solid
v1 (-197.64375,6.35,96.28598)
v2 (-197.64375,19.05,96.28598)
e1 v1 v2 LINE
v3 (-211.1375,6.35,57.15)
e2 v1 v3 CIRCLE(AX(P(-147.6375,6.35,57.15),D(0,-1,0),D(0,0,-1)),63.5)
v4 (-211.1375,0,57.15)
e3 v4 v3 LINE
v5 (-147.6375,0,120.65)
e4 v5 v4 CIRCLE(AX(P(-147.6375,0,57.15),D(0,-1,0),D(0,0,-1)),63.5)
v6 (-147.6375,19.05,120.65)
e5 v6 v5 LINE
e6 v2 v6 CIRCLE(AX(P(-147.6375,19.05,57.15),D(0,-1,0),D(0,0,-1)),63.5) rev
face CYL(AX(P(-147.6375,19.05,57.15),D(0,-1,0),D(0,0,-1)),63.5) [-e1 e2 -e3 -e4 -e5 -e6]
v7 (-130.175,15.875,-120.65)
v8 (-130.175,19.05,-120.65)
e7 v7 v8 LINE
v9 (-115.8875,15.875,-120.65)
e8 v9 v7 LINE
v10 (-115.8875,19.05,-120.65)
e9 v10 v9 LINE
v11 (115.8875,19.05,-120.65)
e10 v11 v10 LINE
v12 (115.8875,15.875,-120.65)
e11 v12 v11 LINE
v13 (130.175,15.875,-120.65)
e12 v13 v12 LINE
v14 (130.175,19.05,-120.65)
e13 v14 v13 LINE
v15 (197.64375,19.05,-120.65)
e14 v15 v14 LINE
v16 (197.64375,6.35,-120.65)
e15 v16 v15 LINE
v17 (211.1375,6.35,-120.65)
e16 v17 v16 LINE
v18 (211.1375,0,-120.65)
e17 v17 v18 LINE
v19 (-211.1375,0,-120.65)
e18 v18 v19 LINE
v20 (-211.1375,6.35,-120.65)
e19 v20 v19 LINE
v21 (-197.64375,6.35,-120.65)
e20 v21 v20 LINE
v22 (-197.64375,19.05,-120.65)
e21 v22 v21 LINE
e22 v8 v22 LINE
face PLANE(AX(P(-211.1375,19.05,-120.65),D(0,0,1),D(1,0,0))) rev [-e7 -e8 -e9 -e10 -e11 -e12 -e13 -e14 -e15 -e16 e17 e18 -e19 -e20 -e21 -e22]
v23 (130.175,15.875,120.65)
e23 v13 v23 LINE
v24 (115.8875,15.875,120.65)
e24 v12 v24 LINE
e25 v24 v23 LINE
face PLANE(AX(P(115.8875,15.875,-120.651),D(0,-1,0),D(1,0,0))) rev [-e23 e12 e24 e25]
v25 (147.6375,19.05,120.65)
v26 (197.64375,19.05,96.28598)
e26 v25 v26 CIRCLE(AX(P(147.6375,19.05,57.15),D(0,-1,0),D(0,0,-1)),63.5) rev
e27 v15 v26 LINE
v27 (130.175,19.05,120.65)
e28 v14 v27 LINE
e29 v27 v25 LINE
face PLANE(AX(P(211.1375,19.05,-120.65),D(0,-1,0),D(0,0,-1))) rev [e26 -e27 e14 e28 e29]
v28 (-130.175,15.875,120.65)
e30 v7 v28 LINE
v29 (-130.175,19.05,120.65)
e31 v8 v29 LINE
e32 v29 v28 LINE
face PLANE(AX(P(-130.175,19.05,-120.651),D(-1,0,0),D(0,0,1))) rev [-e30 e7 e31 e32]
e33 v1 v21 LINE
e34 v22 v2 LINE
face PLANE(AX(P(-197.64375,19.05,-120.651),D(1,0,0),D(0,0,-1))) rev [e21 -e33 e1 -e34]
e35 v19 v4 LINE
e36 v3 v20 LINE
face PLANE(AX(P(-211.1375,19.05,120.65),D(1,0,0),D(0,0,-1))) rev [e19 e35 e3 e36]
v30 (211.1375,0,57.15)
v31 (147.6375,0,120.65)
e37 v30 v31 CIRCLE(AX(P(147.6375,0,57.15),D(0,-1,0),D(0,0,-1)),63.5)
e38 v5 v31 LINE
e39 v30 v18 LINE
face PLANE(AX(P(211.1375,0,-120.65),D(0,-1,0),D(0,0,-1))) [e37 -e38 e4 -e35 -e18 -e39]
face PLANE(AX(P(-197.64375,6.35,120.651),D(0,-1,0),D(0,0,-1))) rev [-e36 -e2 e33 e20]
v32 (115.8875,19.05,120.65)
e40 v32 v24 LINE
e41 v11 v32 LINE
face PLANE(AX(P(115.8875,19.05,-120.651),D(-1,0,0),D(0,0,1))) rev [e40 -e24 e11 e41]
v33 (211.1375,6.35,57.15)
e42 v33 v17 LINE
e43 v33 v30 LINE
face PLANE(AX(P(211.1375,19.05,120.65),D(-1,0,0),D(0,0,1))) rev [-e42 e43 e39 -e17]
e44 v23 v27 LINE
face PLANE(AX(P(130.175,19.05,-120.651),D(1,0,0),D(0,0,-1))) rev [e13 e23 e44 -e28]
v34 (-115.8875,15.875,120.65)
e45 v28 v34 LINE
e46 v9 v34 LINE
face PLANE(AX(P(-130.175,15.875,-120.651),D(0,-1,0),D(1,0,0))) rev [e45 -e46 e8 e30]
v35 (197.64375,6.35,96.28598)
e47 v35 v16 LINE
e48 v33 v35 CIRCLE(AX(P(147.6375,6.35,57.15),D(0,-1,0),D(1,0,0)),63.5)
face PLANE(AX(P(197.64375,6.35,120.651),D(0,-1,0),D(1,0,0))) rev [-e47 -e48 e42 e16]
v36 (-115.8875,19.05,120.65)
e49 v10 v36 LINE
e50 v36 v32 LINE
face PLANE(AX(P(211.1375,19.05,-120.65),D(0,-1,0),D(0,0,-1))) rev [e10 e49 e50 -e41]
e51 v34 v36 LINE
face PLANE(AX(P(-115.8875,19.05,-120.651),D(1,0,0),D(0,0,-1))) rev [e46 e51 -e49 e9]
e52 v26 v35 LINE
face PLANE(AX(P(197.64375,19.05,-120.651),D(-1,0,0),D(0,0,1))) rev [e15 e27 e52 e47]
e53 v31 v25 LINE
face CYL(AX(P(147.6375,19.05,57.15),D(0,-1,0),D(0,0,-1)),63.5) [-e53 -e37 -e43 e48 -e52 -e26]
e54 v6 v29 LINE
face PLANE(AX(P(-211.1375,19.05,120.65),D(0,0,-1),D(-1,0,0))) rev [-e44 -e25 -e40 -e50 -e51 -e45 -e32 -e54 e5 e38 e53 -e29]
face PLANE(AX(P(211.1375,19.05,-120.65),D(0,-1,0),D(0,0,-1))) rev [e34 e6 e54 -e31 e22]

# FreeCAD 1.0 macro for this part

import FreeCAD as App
import Part
import Sketcher
Q = App.Units.Quantity


def edges_at(feature, points):
    """Names of the edges that pass closest to the given points."""
    edges = feature.Shape.Edges
    near = lambda p: min(range(len(edges)), key=lambda i: edges[i].distToShape(Part.Vertex(*p))[0])
    return sorted({f"Edge{near(p) + 1}" for p in points})


def add_polygon(sketch, points):
    """Adds a closed chain of lines whose ends are joined by coincident constraints."""
    first, n = sketch.GeometryCount, len(points)
    for a, b in zip(points, points[1:] + points[:1]):
        sketch.addGeometry(Part.LineSegment(App.Vector(*a, 0), App.Vector(*b, 0)), False)
    for i in range(n):
        sketch.addConstraint(Sketcher.Constraint("Coincident", first + i, 2, first + (i + 1) % n, 1))

doc = App.newDocument("Part")
body = doc.addObject("PartDesign::Body", "Body")

# Sketch on XZ plane
sketch1 = body.newObject("Sketcher::SketchObject", "Sketch")
sketch1.AttachmentSupport = (doc.getObject("XZ_Plane"), [""])
sketch1.MapMode = "FlatFace"
add_polygon(sketch1, [(-211, -121), (-211, 121), (211, 121), (211, -121)])  # lines 0-3
sketch1.addConstraint(Sketcher.Constraint("Vertical", 0))
sketch1.addConstraint(Sketcher.Constraint("Horizontal", 1))
sketch1.addConstraint(Sketcher.Constraint("Vertical", 2))
sketch1.addConstraint(Sketcher.Constraint("Horizontal", 3))
sketch1.addConstraint(Sketcher.Constraint("Symmetric", 0, 2, 2, 2, -1, 1))
sketch1.addConstraint(Sketcher.Constraint("DistanceY", 0, 1, 0, 2, Q("9.5 in")))
sketch1.addConstraint(Sketcher.Constraint("DistanceX", 1, 1, 1, 2, Q("16.625 in")))
pad1 = body.newObject("PartDesign::Pad", "Pad")
pad1.Profile = sketch1
pad1.Length = Q("0.75 in")
pad1.Reversed = True

# Sketch on XY plane
sketch2 = body.newObject("Sketcher::SketchObject", "Sketch001")
sketch2.AttachmentSupport = (doc.getObject("XY_Plane"), [""])
sketch2.MapMode = "FlatFace"
sketch2.AttachmentOffset = App.Placement(App.Vector(0, 0, 4.75 * 25.4), App.Rotation())
add_polygon(sketch2, [(-211.1, 19.1), (-211.1, 15.9), (-197.6, 15.9), (-197.6, 19.1)])  # lines 0-3
sketch2.addConstraint(Sketcher.Constraint("Vertical", 0))
sketch2.addConstraint(Sketcher.Constraint("Horizontal", 1))
sketch2.addConstraint(Sketcher.Constraint("Vertical", 2))
sketch2.addConstraint(Sketcher.Constraint("Horizontal", 3))
sketch2.addConstraint(Sketcher.Constraint("DistanceX", 1, 1, 1, 2, Q("0.53125 in")))
sketch2.addConstraint(Sketcher.Constraint("DistanceY", 0, 2, 0, 1, Q("0.125 in")))
sketch2.addConstraint(Sketcher.Constraint("DistanceY", -1, 1, 2, 2, Q("0.75 in")))
sketch2.addConstraint(Sketcher.Constraint("DistanceX", 0, 2, -1, 1, Q("8.3125 in")))
pocket1 = body.newObject("PartDesign::Pocket", "Pocket")
pocket1.Profile = sketch2
pocket1.Type = "UpToFirst"

# Sketch on XY plane
sketch3 = body.newObject("Sketcher::SketchObject", "Sketch002")
sketch3.AttachmentSupport = (doc.getObject("XY_Plane"), [""])
sketch3.MapMode = "FlatFace"
sketch3.AttachmentOffset = App.Placement(App.Vector(0, 0, 4.75 * 25.4), App.Rotation())
add_polygon(sketch3, [(-130.2, 19.1), (-130.2, 15.9), (-115.9, 15.9), (-115.9, 19.1)])  # lines 0-3
sketch3.addConstraint(Sketcher.Constraint("Vertical", 0))
sketch3.addConstraint(Sketcher.Constraint("Horizontal", 1))
sketch3.addConstraint(Sketcher.Constraint("Vertical", 2))
sketch3.addConstraint(Sketcher.Constraint("Horizontal", 3))
sketch3.addConstraint(Sketcher.Constraint("DistanceX", 1, 1, 1, 2, Q("0.5625 in")))
sketch3.addConstraint(Sketcher.Constraint("DistanceY", 0, 2, 0, 1, Q("0.125 in")))
sketch3.addConstraint(Sketcher.Constraint("DistanceY", -1, 1, 2, 2, Q("0.75 in")))
sketch3.addConstraint(Sketcher.Constraint("DistanceX", 0, 2, -1, 1, Q("5.125 in")))
pocket2 = body.newObject("PartDesign::Pocket", "Pocket001")
pocket2.Profile = sketch3
pocket2.Type = "UpToFirst"

# Sketch on XY plane
sketch4 = body.newObject("Sketcher::SketchObject", "Sketch003")
sketch4.AttachmentSupport = (doc.getObject("XY_Plane"), [""])
sketch4.MapMode = "FlatFace"
sketch4.AttachmentOffset = App.Placement(App.Vector(0, 0, 4.75 * 25.4), App.Rotation())
add_polygon(sketch4, [(115.9, 19.1), (115.9, 15.9), (130.2, 15.9), (130.2, 19.1)])  # lines 0-3
sketch4.addConstraint(Sketcher.Constraint("Vertical", 0))
sketch4.addConstraint(Sketcher.Constraint("Horizontal", 1))
sketch4.addConstraint(Sketcher.Constraint("Vertical", 2))
sketch4.addConstraint(Sketcher.Constraint("Horizontal", 3))
sketch4.addConstraint(Sketcher.Constraint("DistanceX", 1, 1, 1, 2, Q("0.5625 in")))
sketch4.addConstraint(Sketcher.Constraint("DistanceY", 0, 2, 0, 1, Q("0.125 in")))
sketch4.addConstraint(Sketcher.Constraint("DistanceY", -1, 1, 2, 2, Q("0.75 in")))
sketch4.addConstraint(Sketcher.Constraint("DistanceX", -1, 1, 0, 2, Q("4.5625 in")))
pocket3 = body.newObject("PartDesign::Pocket", "Pocket002")
pocket3.Profile = sketch4
pocket3.Type = "UpToFirst"

# Sketch on XY plane
sketch5 = body.newObject("Sketcher::SketchObject", "Sketch004")
sketch5.AttachmentSupport = (doc.getObject("XY_Plane"), [""])
sketch5.MapMode = "FlatFace"
sketch5.AttachmentOffset = App.Placement(App.Vector(0, 0, 4.75 * 25.4), App.Rotation())
add_polygon(sketch5, [(197.6, 19.1), (197.6, 15.9), (211.1, 15.9), (211.1, 19.1)])  # lines 0-3
sketch5.addConstraint(Sketcher.Constraint("Vertical", 0))
sketch5.addConstraint(Sketcher.Constraint("Horizontal", 1))
sketch5.addConstraint(Sketcher.Constraint("Vertical", 2))
sketch5.addConstraint(Sketcher.Constraint("Horizontal", 3))
sketch5.addConstraint(Sketcher.Constraint("DistanceX", 1, 1, 1, 2, Q("0.53125 in")))
sketch5.addConstraint(Sketcher.Constraint("DistanceY", 0, 2, 0, 1, Q("0.125 in")))
sketch5.addConstraint(Sketcher.Constraint("DistanceY", -1, 1, 2, 2, Q("0.75 in")))
sketch5.addConstraint(Sketcher.Constraint("DistanceX", -1, 1, 0, 2, Q("7.78125 in")))
pocket4 = body.newObject("PartDesign::Pocket", "Pocket003")
pocket4.Profile = sketch5
pocket4.Type = "UpToFirst"
doc.recompute()

fillet = body.newObject("PartDesign::Fillet", "Fillet")
fillet.Base = (pocket4, edges_at(pocket4, [(211.137, 7.938, 120.65), (-211.137, 7.938, 120.65)]))
fillet.Radius = Q("2.5 in")

# Sketch on XY plane
sketch6 = body.newObject("Sketcher::SketchObject", "Sketch005")
sketch6.AttachmentSupport = (doc.getObject("XY_Plane"), [""])
sketch6.MapMode = "FlatFace"
sketch6.AttachmentOffset = App.Placement(App.Vector(0, 0, -4.75 * 25.4), App.Rotation())
add_polygon(sketch6, [(211, 16), (211, 6), (198, 6), (198, 16)])  # lines 0-3
sketch6.addConstraint(Sketcher.Constraint("Vertical", 0))
sketch6.addConstraint(Sketcher.Constraint("Horizontal", 1))
sketch6.addConstraint(Sketcher.Constraint("Vertical", 2))
sketch6.addConstraint(Sketcher.Constraint("Horizontal", 3))
sketch6.addConstraint(Sketcher.Constraint("DistanceX", 1, 2, 1, 1, Q("0.53125 in")))
sketch6.addConstraint(Sketcher.Constraint("DistanceY", 0, 2, 0, 1, Q("0.375 in")))
sketch6.addConstraint(Sketcher.Constraint("DistanceY", -1, 1, 0, 2, Q("0.25 in")))
sketch6.addConstraint(Sketcher.Constraint("DistanceX", -1, 1, 0, 2, Q("8.3125 in")))
pocket5 = body.newObject("PartDesign::Pocket", "Pocket004")
pocket5.Profile = sketch6
pocket5.Type = "UpToFirst"
pocket5.Reversed = True

# Sketch on XY plane
sketch7 = body.newObject("Sketcher::SketchObject", "Sketch006")
sketch7.AttachmentSupport = (doc.getObject("XY_Plane"), [""])
sketch7.MapMode = "FlatFace"
sketch7.AttachmentOffset = App.Placement(App.Vector(0, 0, -4.75 * 25.4), App.Rotation())
add_polygon(sketch7, [(-198, 16), (-198, 6), (-211, 6), (-211, 16)])  # lines 0-3
sketch7.addConstraint(Sketcher.Constraint("Vertical", 0))
sketch7.addConstraint(Sketcher.Constraint("Horizontal", 1))
sketch7.addConstraint(Sketcher.Constraint("Vertical", 2))
sketch7.addConstraint(Sketcher.Constraint("Horizontal", 3))
sketch7.addConstraint(Sketcher.Constraint("DistanceX", 1, 2, 1, 1, Q("0.53125 in")))
sketch7.addConstraint(Sketcher.Constraint("DistanceY", 0, 2, 0, 1, Q("0.375 in")))
sketch7.addConstraint(Sketcher.Constraint("DistanceY", -1, 1, 0, 2, Q("0.25 in")))
sketch7.addConstraint(Sketcher.Constraint("DistanceX", 0, 2, -1, 1, Q("7.78125 in")))
pocket6 = body.newObject("PartDesign::Pocket", "Pocket005")
pocket6.Profile = sketch7
pocket6.Type = "UpToFirst"
pocket6.Reversed = True

doc.recompute()
